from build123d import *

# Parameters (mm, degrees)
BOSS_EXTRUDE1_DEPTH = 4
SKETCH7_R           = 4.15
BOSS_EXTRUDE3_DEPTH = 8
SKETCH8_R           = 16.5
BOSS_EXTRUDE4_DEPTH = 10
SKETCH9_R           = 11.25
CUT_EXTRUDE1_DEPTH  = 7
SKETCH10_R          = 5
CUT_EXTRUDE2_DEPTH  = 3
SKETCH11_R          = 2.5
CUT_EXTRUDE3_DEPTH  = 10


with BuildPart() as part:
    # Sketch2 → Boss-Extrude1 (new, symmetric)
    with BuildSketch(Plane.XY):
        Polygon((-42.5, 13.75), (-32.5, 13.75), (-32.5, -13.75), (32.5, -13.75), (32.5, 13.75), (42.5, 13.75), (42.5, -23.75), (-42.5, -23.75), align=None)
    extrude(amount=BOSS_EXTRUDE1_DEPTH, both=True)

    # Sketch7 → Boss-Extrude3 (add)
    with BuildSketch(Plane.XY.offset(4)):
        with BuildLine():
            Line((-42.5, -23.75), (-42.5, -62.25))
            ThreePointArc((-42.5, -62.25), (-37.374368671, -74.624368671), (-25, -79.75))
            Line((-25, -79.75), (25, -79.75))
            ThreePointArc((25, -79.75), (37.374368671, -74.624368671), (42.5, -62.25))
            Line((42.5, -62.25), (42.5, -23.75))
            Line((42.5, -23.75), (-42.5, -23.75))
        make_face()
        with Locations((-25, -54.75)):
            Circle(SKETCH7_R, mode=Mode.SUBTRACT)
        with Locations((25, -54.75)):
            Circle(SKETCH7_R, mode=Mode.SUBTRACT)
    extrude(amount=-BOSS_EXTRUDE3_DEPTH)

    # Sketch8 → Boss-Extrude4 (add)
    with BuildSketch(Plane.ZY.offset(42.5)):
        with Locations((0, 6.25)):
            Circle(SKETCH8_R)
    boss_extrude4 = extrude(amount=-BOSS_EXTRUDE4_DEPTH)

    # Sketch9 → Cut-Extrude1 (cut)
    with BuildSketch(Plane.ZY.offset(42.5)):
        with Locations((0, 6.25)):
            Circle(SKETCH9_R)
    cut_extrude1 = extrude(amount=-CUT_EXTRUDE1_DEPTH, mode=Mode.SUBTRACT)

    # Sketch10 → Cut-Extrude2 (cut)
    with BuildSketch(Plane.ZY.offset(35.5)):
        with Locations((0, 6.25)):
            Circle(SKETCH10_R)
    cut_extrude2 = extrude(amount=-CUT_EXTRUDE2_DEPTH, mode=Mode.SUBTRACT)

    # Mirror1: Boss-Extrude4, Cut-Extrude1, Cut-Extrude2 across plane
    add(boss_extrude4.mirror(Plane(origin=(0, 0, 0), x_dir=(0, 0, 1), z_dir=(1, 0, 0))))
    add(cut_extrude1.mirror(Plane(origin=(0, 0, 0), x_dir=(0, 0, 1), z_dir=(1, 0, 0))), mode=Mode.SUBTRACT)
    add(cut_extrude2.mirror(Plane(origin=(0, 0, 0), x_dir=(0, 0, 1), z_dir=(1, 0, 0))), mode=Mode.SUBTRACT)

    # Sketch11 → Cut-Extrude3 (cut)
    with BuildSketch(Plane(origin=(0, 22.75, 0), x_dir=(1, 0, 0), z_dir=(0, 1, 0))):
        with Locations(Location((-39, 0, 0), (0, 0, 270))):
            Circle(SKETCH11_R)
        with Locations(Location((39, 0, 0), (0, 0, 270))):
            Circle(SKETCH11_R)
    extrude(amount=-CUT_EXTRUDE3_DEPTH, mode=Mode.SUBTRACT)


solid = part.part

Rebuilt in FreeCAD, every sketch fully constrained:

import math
import FreeCAD as App
import Part
import Sketcher

V = App.Vector
Q = App.Units.Quantity

doc = App.newDocument("Part")
body = doc.addObject("PartDesign::Body", "Body")

# Sketch on XY plane
sketch1 = body.newObject("Sketcher::SketchObject", "Sketch")
sketch1.AttachmentSupport = (doc.getObject("XY_Plane"), [""])
sketch1.MapMode = "FlatFace"
sketch1.addGeometry([
    Part.LineSegment(V(-32.5, 13.75, 0), V(-42.5, 13.75, 0)),  # 0
    Part.LineSegment(V(-42.5, 13.75, 0), V(-42.5, -23.75, 0)),  # 1
    Part.LineSegment(V(-42.5, -23.75, 0), V(42.5, -23.75, 0)),  # 2
    Part.LineSegment(V(42.5, -23.75, 0), V(42.5, 13.75, 0)),  # 3
    Part.LineSegment(V(42.5, 13.75, 0), V(32.5, 13.75, 0)),  # 4
    Part.LineSegment(V(32.5, 13.75, 0), V(32.5, -13.75, 0)),  # 5
    Part.LineSegment(V(32.5, -13.75, 0), V(-32.5, -13.75, 0)),  # 6
    Part.LineSegment(V(-32.5, -13.75, 0), V(-32.5, 13.75, 0)),  # 7
], False)
sketch1.addConstraint([
    Sketcher.Constraint("Coincident", 0, 2, 1, 1),
    Sketcher.Constraint("Coincident", 1, 2, 2, 1),
    Sketcher.Constraint("Coincident", 2, 2, 3, 1),
    Sketcher.Constraint("Coincident", 3, 2, 4, 1),
    Sketcher.Constraint("Coincident", 4, 2, 5, 1),
    Sketcher.Constraint("Coincident", 5, 2, 6, 1),
    Sketcher.Constraint("Coincident", 6, 2, 7, 1),
    Sketcher.Constraint("Coincident", 7, 2, 0, 1),
    Sketcher.Constraint("Horizontal", 0),
    Sketcher.Constraint("Vertical", 1),
    Sketcher.Constraint("Horizontal", 2),
    Sketcher.Constraint("Vertical", 3),
    Sketcher.Constraint("Horizontal", 4),
    Sketcher.Constraint("Vertical", 5),
    Sketcher.Constraint("Horizontal", 6),
    Sketcher.Constraint("Vertical", 7),
    Sketcher.Constraint("Symmetric", 4, 2, 6, 2, -1, 1),
    Sketcher.Constraint("Symmetric", 0, 2, 3, 2, -2),
    Sketcher.Constraint("DistanceX", 0, 2, 0, 1, Q("10 mm")),
    Sketcher.Constraint("DistanceX", 2, 1, 2, 2, Q("85 mm")),
    Sketcher.Constraint("DistanceY", 1, 2, 1, 1, Q("37.5 mm")),
    Sketcher.Constraint("DistanceY", 5, 2, 5, 1, Q("27.5 mm")),
])
pad1 = body.newObject("PartDesign::Pad", "Pad")
pad1.Profile = sketch1
pad1.Length = 8
pad1.Midplane = True

# Sketch on XY plane
sketch2 = body.newObject("Sketcher::SketchObject", "Sketch001")
sketch2.AttachmentSupport = (doc.getObject("XY_Plane"), [""])
sketch2.MapMode = "FlatFace"
sketch2.AttachmentOffset = App.Placement(V(0, 0, 4), App.Rotation())
sketch2.addGeometry([
    Part.LineSegment(V(-42.5, -23.75, 0), V(-42.5, -62.25, 0)),  # 0
    Part.ArcOfCircle(Part.Circle(V(-25, -62.25, 0), V(0, 0, 1), 17.5), math.radians(180), math.radians(270)),  # 1
    Part.LineSegment(V(-25, -79.75, 0), V(25, -79.75, 0)),  # 2
    Part.ArcOfCircle(Part.Circle(V(25, -62.25, 0), V(0, 0, 1), 17.5), math.radians(-90), math.radians(0)),  # 3
    Part.LineSegment(V(42.5, -62.25, 0), V(42.5, -23.75, 0)),  # 4
    Part.LineSegment(V(42.5, -23.75, 0), V(-42.5, -23.75, 0)),  # 5
    Part.Circle(V(-25, -54.75, 0), V(0, 0, 1), 4.15),  # 6
    Part.Circle(V(25, -54.75, 0), V(0, 0, 1), 4.15),  # 7
], False)
sketch2.addConstraint([
    Sketcher.Constraint("Tangent", 0, 2, 1, 1),
    Sketcher.Constraint("Tangent", 1, 2, 2, 1),
    Sketcher.Constraint("Tangent", 2, 2, 3, 1),
    Sketcher.Constraint("Tangent", 3, 2, 4, 1),
    Sketcher.Constraint("Coincident", 4, 2, 5, 1),
    Sketcher.Constraint("Coincident", 5, 2, 0, 1),
    Sketcher.Constraint("Vertical", 0),
    Sketcher.Constraint("Horizontal", 2),
    Sketcher.Constraint("Vertical", 4),
    Sketcher.Constraint("Horizontal", 5),
    Sketcher.Constraint("Equal", 1, 3),
    Sketcher.Constraint("Equal", 6, 7),
    Sketcher.Constraint("Symmetric", 6, 3, 7, 3, -2),
    Sketcher.Constraint("Vertical", 1, 3, 6, 3),
    Sketcher.Constraint("Vertical", 3, 3, 7, 3),
    Sketcher.Constraint("Diameter", 6, Q("8.3 mm")),
    Sketcher.Constraint("Radius", 1, Q("17.5 mm")),
    Sketcher.Constraint("DistanceX", 2, 1, 2, 2, Q("50 mm")),
    Sketcher.Constraint("DistanceY", 0, 2, 0, 1, Q("38.5 mm")),
    Sketcher.Constraint("DistanceY", 1, 2, 6, 3, Q("25 mm")),
    Sketcher.Constraint("DistanceY", 1, 3, -1, 1, Q("62.25 mm")),
])
pad2 = body.newObject("PartDesign::Pad", "Pad001")
pad2.Profile = sketch2
pad2.Length = 8
pad2.Reversed = True

# Sketch on YZ plane
sketch3 = body.newObject("Sketcher::SketchObject", "Sketch002")
sketch3.AttachmentSupport = (doc.getObject("YZ_Plane"), [""])
sketch3.MapMode = "FlatFace"
sketch3.AttachmentOffset = App.Placement(V(0, 0, -42.5), App.Rotation())
sketch3.addGeometry(Part.Circle(V(6.25, 0, 0), V(0, 0, 1), 16.5), False)
sketch3.addConstraint([
    Sketcher.Constraint("PointOnObject", 0, 3, -1),
    Sketcher.Constraint("Diameter", 0, Q("33 mm")),
    Sketcher.Constraint("DistanceX", -1, 1, 0, 3, Q("6.25 mm")),
])
pad3 = body.newObject("PartDesign::Pad", "Pad002")
pad3.Profile = sketch3
pad3.Length = 10

# Sketch on YZ plane
sketch4 = body.newObject("Sketcher::SketchObject", "Sketch003")
sketch4.AttachmentSupport = (doc.getObject("YZ_Plane"), [""])
sketch4.MapMode = "FlatFace"
sketch4.AttachmentOffset = App.Placement(V(0, 0, -42.5), App.Rotation())
sketch4.addGeometry(Part.Circle(V(6.25, 0, 0), V(0, 0, 1), 11.25), False)
sketch4.addConstraint([
    Sketcher.Constraint("PointOnObject", 0, 3, -1),
    Sketcher.Constraint("Diameter", 0, Q("22.5 mm")),
    Sketcher.Constraint("DistanceX", -1, 1, 0, 3, Q("6.25 mm")),
])
pocket1 = body.newObject("PartDesign::Pocket", "Pocket")
pocket1.Profile = sketch4
pocket1.Length = 7
pocket1.Reversed = True

# Sketch on YZ plane
sketch5 = body.newObject("Sketcher::SketchObject", "Sketch004")
sketch5.AttachmentSupport = (doc.getObject("YZ_Plane"), [""])
sketch5.MapMode = "FlatFace"
sketch5.AttachmentOffset = App.Placement(V(0, 0, -35.5), App.Rotation())
sketch5.addGeometry(Part.Circle(V(6.25, 0, 0), V(0, 0, 1), 5), False)
sketch5.addConstraint([
    Sketcher.Constraint("PointOnObject", 0, 3, -1),
    Sketcher.Constraint("Diameter", 0, Q("10 mm")),
    Sketcher.Constraint("DistanceX", -1, 1, 0, 3, Q("6.25 mm")),
])
pocket2 = body.newObject("PartDesign::Pocket", "Pocket001")
pocket2.Profile = sketch5
pocket2.Length = 3
pocket2.Reversed = True
doc.recompute()

mirrored = body.newObject("PartDesign::Mirrored", "Mirrored")
mirrored.Originals = [pad3, pocket1, pocket2]
mirrored.MirrorPlane = (doc.getObject("YZ_Plane"), [""])
body.Tip = mirrored

# Sketch on XZ plane
sketch6 = body.newObject("Sketcher::SketchObject", "Sketch005")
sketch6.AttachmentSupport = (doc.getObject("XZ_Plane"), [""])
sketch6.MapMode = "FlatFace"
sketch6.AttachmentOffset = App.Placement(V(0, 0, -22.75), App.Rotation())
sketch6.addGeometry([
    Part.Circle(V(-39, 0, 0), V(0, 0, 1), 2.5),
    Part.Circle(V(39, 0, 0), V(0, 0, 1), 2.5),
], False)
sketch6.addConstraint([
    Sketcher.Constraint("Equal", 0, 1),
    Sketcher.Constraint("Symmetric", 0, 3, 1, 3, -1, 1),
    Sketcher.Constraint("PointOnObject", 0, 3, -1),
    Sketcher.Constraint("Diameter", 0, Q("5 mm")),
    Sketcher.Constraint("DistanceX", 0, 3, -1, 1, Q("39 mm")),
])
pocket3 = body.newObject("PartDesign::Pocket", "Pocket002")
pocket3.Profile = sketch6
pocket3.Length = 10
pocket3.Reversed = True

doc.recompute()
